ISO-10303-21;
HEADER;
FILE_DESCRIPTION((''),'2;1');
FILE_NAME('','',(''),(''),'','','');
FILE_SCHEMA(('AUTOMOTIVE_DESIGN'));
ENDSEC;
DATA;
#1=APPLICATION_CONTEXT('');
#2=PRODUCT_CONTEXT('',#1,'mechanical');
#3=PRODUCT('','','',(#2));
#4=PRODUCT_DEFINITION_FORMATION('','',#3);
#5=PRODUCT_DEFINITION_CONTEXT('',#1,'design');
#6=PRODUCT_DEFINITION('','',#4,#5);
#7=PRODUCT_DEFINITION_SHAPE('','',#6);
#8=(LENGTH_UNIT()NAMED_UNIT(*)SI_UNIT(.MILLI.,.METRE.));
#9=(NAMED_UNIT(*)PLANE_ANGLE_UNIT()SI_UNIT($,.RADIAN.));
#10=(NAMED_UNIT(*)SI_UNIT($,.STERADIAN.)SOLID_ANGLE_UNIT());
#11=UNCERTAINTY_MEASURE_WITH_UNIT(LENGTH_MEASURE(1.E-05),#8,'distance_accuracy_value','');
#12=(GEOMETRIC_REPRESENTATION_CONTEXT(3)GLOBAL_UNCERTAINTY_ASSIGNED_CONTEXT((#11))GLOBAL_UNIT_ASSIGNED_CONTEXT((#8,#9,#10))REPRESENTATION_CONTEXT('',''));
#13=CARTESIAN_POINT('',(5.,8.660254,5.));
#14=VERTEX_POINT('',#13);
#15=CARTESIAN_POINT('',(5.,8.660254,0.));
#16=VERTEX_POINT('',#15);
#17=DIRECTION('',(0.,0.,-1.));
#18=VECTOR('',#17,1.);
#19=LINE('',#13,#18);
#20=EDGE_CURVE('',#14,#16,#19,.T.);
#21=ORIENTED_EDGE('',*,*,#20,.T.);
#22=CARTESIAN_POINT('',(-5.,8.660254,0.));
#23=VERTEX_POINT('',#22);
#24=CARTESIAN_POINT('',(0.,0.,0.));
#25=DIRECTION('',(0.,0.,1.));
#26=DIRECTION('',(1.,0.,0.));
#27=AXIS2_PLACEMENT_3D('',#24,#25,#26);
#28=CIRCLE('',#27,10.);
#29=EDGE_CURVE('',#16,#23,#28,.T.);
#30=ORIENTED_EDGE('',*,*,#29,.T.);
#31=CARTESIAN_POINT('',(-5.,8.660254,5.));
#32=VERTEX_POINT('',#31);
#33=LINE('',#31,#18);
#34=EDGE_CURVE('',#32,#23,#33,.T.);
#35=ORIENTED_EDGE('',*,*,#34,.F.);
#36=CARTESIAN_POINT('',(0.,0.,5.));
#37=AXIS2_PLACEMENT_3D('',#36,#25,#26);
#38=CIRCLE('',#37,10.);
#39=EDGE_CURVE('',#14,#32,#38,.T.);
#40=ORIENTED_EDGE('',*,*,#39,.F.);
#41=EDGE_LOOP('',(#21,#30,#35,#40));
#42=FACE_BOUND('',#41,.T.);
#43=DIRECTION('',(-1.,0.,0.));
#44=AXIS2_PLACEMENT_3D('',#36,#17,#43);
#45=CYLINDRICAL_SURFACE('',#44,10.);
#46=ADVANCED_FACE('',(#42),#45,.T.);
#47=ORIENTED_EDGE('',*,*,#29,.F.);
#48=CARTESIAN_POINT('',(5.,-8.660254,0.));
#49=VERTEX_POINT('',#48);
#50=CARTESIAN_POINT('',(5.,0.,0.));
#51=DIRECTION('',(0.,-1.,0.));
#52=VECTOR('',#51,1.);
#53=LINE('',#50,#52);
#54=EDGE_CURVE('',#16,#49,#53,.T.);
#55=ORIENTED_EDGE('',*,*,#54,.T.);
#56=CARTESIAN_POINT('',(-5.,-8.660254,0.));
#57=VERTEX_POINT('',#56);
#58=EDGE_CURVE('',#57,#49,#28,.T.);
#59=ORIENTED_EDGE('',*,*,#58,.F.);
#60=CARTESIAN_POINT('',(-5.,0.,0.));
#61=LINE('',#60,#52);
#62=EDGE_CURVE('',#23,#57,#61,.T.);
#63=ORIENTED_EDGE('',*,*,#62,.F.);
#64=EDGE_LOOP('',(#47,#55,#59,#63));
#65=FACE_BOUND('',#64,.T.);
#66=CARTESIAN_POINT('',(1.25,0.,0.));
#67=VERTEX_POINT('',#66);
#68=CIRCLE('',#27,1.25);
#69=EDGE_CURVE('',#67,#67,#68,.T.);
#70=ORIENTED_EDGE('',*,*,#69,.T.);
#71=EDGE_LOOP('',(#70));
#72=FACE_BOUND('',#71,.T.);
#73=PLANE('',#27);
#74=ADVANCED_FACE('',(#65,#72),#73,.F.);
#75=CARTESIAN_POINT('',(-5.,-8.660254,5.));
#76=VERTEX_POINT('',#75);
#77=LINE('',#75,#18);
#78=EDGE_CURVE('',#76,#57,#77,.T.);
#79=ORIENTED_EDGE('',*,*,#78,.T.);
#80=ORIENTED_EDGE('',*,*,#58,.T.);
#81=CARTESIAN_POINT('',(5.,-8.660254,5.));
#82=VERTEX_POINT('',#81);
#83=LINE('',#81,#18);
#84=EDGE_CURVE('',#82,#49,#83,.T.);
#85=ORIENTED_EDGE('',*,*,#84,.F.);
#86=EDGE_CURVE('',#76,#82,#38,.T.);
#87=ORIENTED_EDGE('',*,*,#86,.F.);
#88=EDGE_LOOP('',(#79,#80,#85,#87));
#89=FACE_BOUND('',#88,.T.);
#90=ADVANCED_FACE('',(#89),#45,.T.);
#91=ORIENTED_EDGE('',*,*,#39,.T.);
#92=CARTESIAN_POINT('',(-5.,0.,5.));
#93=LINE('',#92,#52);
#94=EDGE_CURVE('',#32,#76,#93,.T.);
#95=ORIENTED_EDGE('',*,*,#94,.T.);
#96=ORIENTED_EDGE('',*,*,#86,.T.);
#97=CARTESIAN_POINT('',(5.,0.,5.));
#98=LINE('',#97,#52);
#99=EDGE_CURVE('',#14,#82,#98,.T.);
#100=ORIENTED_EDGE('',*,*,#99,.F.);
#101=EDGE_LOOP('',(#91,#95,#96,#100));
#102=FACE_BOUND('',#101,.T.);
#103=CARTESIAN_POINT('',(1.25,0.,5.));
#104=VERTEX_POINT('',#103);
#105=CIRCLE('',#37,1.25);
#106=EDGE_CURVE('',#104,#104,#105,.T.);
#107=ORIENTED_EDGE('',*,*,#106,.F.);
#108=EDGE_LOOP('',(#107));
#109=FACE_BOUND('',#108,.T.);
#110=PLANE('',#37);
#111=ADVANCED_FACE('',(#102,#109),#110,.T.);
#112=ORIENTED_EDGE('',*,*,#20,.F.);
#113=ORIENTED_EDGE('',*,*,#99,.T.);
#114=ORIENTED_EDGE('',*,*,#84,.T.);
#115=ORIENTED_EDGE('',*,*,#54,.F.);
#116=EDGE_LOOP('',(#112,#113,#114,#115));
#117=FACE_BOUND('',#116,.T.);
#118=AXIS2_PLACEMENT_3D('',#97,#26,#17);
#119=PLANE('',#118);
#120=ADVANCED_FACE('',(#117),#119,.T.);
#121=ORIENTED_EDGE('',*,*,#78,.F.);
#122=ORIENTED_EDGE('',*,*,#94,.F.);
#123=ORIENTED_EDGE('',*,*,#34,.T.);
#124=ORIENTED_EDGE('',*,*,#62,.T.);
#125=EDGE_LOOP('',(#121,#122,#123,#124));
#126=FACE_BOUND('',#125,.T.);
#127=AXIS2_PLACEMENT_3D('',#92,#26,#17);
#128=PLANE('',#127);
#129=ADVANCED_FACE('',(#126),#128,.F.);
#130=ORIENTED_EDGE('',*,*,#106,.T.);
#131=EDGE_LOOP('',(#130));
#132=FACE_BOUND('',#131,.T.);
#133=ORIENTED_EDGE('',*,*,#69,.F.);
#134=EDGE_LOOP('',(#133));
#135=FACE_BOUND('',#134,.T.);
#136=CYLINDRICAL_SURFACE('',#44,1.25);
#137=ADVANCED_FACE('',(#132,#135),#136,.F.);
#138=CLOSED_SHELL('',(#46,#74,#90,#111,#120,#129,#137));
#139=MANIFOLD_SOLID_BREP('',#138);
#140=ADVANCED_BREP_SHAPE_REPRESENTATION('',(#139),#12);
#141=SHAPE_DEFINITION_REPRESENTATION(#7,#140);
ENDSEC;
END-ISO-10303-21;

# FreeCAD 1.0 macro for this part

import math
import FreeCAD as App
import Part
import Sketcher
from FreeCAD import Vector

doc = App.newDocument("Part")
body = doc.addObject("PartDesign::Body", "Body")

# Sketch on XY plane
sketch1 = body.newObject("Sketcher::SketchObject", "Sketch")
sketch1.AttachmentSupport = (doc.getObject("XY_Plane"), [""])
sketch1.MapMode = "FlatFace"
sketch1.addGeometry([
    Part.ArcOfCircle(Part.Circle(Vector(0, 0, 0), Vector(0, 0, 1), 10), math.radians(60), math.radians(120)),  # 0
    Part.LineSegment(Vector(-5, 8.660254, 0), Vector(-5, -8.660254, 0)),  # 1
    Part.ArcOfCircle(Part.Circle(Vector(0, 0, 0), Vector(0, 0, 1), 10), math.radians(-120), math.radians(-60)),  # 2
    Part.LineSegment(Vector(5, -8.660254, 0), Vector(5, 8.660254, 0)),  # 3
    Part.Circle(Vector(0, 0, 0), Vector(0, 0, 1), 1.25),  # 4
], False)
sketch1.addConstraint([
    Sketcher.Constraint("Coincident", 0, 2, 1, 1),
    Sketcher.Constraint("Coincident", 1, 2, 2, 1),
    Sketcher.Constraint("Coincident", 2, 2, 3, 1),
    Sketcher.Constraint("Coincident", 3, 2, 0, 1),
    Sketcher.Constraint("Vertical", 1),
    Sketcher.Constraint("Vertical", 3),
    Sketcher.Constraint("Coincident", 0, 3, -1, 1),
    Sketcher.Constraint("Coincident", 2, 3, -1, 1),
    Sketcher.Constraint("Coincident", 4, 3, -1, 1),
    Sketcher.Constraint("Equal", 0, 2),
    Sketcher.Constraint("Horizontal", 1, 2, 2, 2),
    Sketcher.Constraint("Radius", 0, 10.0),
    Sketcher.Constraint("Diameter", 4, 2.5),
    Sketcher.Constraint("DistanceX", 0, 2, -1, 1, 5.0),
])
pad1 = body.newObject("PartDesign::Pad", "Pad")
pad1.Profile = sketch1
pad1.Length = 5

doc.recompute()
